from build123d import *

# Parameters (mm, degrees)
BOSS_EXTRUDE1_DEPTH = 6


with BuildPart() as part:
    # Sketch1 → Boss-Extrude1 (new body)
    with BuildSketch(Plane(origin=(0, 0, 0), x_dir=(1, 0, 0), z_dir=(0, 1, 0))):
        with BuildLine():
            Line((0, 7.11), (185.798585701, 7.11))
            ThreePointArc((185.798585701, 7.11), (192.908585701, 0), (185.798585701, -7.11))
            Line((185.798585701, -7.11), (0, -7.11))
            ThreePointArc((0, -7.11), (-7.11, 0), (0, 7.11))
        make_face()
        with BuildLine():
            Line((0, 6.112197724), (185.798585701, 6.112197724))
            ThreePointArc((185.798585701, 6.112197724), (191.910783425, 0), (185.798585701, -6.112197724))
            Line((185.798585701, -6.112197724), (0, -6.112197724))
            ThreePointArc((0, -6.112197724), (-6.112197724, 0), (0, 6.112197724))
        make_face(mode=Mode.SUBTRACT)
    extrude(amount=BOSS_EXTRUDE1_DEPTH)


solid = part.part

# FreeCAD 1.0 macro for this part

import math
import FreeCAD as App
import Part
import Sketcher
from FreeCAD import Vector

doc = App.newDocument("Part")
params = doc.addObject("Spreadsheet::Sheet", "Params")
for row, (alias, value) in enumerate([
    ("sketch1_radius", "7.11 mm"),
    ("pad1_length", "6 mm"),
], start=1):
    params.set(f"A{row}", alias)
    params.set(f"B{row}", "=" + value)
    params.setAlias(f"B{row}", alias)

body = doc.addObject("PartDesign::Body", "Body")

sketch1 = body.newObject("Sketcher::SketchObject", "Sketch")
sketch1.AttachmentSupport = (doc.getObject("XZ_Plane"), [""])
sketch1.MapMode = "FlatFace"
sketch1.addGeometry([
    Part.LineSegment(Vector(186, -7, 0), Vector(0, -7, 0)),
    Part.ArcOfCircle(Part.Circle(Vector(0, 0, 0), Vector(0, 0, 1), 7), math.radians(90), math.radians(270)),
    Part.LineSegment(Vector(0, 7, 0), Vector(186, 7, 0)),
    Part.ArcOfCircle(Part.Circle(Vector(186, 0, 0), Vector(0, 0, 1), 7), math.radians(-90), math.radians(90)),
    Part.LineSegment(Vector(0, -6, 0), Vector(186, -6, 0)),
    Part.ArcOfCircle(Part.Circle(Vector(186, 0, 0), Vector(0, 0, 1), 6), math.radians(-90), math.radians(90)),
    Part.LineSegment(Vector(186, 6, 0), Vector(0, 6, 0)),
    Part.ArcOfCircle(Part.Circle(Vector(0, 0, 0), Vector(0, 0, 1), 6), math.radians(90), math.radians(270)),
], False)
sketch1.addConstraint([
    Sketcher.Constraint("Tangent", 0, 2, 1, 2),
    Sketcher.Constraint("Tangent", 1, 1, 2, 1),
    Sketcher.Constraint("Tangent", 2, 2, 3, 2),
    Sketcher.Constraint("Tangent", 3, 1, 0, 1),
    Sketcher.Constraint("Tangent", 4, 2, 5, 1),
    Sketcher.Constraint("Tangent", 5, 2, 6, 1),
    Sketcher.Constraint("Tangent", 6, 2, 7, 1),
    Sketcher.Constraint("Tangent", 7, 2, 4, 1),
    Sketcher.Constraint("Horizontal", 0),
    Sketcher.Constraint("Horizontal", 2),
    Sketcher.Constraint("Horizontal", 4),
    Sketcher.Constraint("Horizontal", 6),
    Sketcher.Constraint("Coincident", 1, 3, -1, 1),
    Sketcher.Constraint("Coincident", 7, 3, -1, 1),
    Sketcher.Constraint("Vertical", 5, 3, 2, 2),
    Sketcher.Constraint("Radius", 1, 7.11),
    Sketcher.Constraint("Radius", 5, 6.112198),
    Sketcher.Constraint("DistanceX", 0, 2, 0, 1, 185.798586),
])
sketch1.setExpression("Constraints[15]", "Params.sketch1_radius")
pad1 = body.newObject("PartDesign::Pad", "Pad")
pad1.Profile = sketch1
pad1.setExpression("Length", "Params.pad1_length")
pad1.Reversed = True

doc.recompute()
